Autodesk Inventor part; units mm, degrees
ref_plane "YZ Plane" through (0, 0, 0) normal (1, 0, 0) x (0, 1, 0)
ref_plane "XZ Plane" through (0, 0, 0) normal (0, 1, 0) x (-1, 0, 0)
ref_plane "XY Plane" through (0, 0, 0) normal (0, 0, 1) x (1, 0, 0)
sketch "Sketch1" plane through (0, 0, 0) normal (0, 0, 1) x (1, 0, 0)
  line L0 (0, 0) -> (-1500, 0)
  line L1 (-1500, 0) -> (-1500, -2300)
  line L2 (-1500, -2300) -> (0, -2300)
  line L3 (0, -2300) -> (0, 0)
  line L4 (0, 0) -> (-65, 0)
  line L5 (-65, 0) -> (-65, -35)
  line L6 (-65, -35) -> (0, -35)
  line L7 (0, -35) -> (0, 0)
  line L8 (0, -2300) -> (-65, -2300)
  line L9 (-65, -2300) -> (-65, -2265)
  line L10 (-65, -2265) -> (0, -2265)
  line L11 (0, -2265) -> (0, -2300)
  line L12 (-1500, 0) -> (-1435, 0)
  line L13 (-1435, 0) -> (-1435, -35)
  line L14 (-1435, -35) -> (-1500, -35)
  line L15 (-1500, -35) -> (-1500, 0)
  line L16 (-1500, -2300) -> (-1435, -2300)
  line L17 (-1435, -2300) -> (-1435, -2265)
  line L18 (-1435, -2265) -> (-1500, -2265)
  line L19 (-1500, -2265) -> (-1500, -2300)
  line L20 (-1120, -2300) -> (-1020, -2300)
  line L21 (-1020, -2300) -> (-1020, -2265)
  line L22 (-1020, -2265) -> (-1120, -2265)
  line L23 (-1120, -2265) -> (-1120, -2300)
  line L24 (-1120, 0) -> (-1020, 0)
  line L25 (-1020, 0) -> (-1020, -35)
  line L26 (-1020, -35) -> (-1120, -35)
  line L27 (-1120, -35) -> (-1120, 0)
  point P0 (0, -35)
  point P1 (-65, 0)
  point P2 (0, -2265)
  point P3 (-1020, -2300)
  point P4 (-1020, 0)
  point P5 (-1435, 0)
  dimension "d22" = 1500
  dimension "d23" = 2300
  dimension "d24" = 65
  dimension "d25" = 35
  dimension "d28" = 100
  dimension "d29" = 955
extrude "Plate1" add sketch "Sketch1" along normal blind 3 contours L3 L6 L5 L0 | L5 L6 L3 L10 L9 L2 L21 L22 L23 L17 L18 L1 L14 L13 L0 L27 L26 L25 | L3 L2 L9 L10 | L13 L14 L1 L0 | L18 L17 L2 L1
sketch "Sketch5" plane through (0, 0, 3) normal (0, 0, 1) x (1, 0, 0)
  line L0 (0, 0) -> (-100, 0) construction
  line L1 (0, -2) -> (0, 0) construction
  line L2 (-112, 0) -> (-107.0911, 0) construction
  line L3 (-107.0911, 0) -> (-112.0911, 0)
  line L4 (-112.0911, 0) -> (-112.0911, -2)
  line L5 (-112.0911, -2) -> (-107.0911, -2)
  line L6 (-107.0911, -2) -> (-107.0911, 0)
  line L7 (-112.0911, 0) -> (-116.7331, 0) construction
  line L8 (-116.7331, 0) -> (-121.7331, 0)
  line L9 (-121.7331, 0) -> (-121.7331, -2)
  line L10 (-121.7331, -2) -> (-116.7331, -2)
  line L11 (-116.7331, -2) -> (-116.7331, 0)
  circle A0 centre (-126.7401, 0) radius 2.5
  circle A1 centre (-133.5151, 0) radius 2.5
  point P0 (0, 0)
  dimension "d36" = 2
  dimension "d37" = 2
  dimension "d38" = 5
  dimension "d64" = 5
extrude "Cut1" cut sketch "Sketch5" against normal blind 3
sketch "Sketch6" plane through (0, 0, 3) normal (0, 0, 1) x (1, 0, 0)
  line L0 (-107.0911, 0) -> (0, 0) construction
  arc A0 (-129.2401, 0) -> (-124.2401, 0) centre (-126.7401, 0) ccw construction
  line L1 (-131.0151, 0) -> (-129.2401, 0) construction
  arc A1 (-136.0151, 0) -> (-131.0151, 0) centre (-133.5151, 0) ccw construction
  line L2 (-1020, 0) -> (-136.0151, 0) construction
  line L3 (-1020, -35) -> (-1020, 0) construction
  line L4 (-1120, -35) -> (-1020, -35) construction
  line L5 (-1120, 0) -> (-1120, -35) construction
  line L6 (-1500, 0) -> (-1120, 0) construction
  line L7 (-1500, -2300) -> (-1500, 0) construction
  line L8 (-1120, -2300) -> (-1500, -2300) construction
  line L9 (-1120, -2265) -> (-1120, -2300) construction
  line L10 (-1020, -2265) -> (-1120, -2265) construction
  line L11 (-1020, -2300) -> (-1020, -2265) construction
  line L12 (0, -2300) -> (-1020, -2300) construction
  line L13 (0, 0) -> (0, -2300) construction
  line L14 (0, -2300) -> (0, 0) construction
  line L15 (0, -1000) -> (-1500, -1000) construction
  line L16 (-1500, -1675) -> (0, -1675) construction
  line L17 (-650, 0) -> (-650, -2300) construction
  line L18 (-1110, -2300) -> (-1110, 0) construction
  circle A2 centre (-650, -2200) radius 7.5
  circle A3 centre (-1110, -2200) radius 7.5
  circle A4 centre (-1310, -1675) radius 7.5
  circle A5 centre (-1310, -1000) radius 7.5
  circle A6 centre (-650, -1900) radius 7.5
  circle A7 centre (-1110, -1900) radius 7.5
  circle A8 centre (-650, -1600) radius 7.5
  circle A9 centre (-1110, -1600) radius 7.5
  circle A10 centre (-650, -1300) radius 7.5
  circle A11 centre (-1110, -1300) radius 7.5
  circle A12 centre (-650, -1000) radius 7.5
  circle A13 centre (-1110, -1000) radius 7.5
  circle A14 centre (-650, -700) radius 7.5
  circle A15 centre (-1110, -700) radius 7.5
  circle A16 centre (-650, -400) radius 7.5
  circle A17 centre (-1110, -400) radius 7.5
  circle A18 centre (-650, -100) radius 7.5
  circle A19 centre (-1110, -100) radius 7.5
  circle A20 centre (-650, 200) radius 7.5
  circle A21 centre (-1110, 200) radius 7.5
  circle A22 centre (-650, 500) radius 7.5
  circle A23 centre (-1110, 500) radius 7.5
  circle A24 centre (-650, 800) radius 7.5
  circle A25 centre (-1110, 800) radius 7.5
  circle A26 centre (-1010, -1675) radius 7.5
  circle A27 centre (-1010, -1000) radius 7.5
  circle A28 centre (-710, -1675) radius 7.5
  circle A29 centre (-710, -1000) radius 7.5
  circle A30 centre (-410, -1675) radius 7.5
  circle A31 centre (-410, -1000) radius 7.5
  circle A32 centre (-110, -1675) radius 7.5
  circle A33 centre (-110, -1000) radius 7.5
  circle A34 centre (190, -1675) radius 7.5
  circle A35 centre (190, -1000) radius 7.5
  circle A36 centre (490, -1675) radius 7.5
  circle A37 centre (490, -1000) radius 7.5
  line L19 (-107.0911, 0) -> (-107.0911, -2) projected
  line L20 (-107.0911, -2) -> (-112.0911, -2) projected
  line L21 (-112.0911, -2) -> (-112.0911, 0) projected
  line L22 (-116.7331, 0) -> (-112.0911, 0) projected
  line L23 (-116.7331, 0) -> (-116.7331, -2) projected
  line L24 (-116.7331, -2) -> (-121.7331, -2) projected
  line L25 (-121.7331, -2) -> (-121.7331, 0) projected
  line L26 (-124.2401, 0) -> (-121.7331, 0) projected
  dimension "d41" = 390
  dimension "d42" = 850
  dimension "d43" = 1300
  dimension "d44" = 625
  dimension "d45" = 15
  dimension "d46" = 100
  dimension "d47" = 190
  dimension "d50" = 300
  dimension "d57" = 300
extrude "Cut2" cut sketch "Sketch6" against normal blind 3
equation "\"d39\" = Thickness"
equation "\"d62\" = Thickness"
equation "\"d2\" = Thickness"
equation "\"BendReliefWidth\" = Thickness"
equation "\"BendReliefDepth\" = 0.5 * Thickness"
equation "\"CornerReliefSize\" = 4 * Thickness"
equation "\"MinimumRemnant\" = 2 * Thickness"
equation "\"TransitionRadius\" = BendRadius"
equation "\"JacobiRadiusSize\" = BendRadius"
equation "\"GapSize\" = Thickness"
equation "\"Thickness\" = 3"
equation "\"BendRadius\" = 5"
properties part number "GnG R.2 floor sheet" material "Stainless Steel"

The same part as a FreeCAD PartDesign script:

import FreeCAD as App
import Part
import Sketcher
Q = App.Units.Quantity

doc = App.newDocument("Part")
body = doc.addObject("PartDesign::Body", "Body")

# Sketch on XY plane
sketch1 = doc.addObject("Sketcher::SketchObject", "Sketch")
body.addObject(sketch1)
sketch1.AttachmentSupport = (doc.XY_Plane, [""])
sketch1.MapMode = "FlatFace"
sketch1.addGeometry([
    Part.LineSegment(App.Vector(0, 0, 0), App.Vector(-1020, 0, 0)),  # 0
    Part.LineSegment(App.Vector(-1020, 0, 0), App.Vector(-1020, -35, 0)),  # 1
    Part.LineSegment(App.Vector(-1020, -35, 0), App.Vector(-1120, -35, 0)),  # 2
    Part.LineSegment(App.Vector(-1120, -35, 0), App.Vector(-1120, 0, 0)),  # 3
    Part.LineSegment(App.Vector(-1120, 0, 0), App.Vector(-1500, 0, 0)),  # 4
    Part.LineSegment(App.Vector(-1500, 0, 0), App.Vector(-1500, -2300, 0)),  # 5
    Part.LineSegment(App.Vector(-1500, -2300, 0), App.Vector(-1120, -2300, 0)),  # 6
    Part.LineSegment(App.Vector(-1120, -2300, 0), App.Vector(-1120, -2265, 0)),  # 7
    Part.LineSegment(App.Vector(-1120, -2265, 0), App.Vector(-1020, -2265, 0)),  # 8
    Part.LineSegment(App.Vector(-1020, -2265, 0), App.Vector(-1020, -2300, 0)),  # 9
    Part.LineSegment(App.Vector(-1020, -2300, 0), App.Vector(0, -2300, 0)),  # 10
    Part.LineSegment(App.Vector(0, -2300, 0), App.Vector(0, 0, 0)),  # 11
], False)
sketch1.addConstraint([
    Sketcher.Constraint("Coincident", 0, 2, 1, 1),
    Sketcher.Constraint("Coincident", 1, 2, 2, 1),
    Sketcher.Constraint("Coincident", 2, 2, 3, 1),
    Sketcher.Constraint("Coincident", 3, 2, 4, 1),
    Sketcher.Constraint("Coincident", 4, 2, 5, 1),
    Sketcher.Constraint("Coincident", 5, 2, 6, 1),
    Sketcher.Constraint("Coincident", 6, 2, 7, 1),
    Sketcher.Constraint("Coincident", 7, 2, 8, 1),
    Sketcher.Constraint("Coincident", 8, 2, 9, 1),
    Sketcher.Constraint("Coincident", 9, 2, 10, 1),
    Sketcher.Constraint("Coincident", 10, 2, 11, 1),
    Sketcher.Constraint("Coincident", 11, 2, 0, 1),
    Sketcher.Constraint("Horizontal", 0),
    Sketcher.Constraint("Vertical", 1),
    Sketcher.Constraint("Horizontal", 2),
    Sketcher.Constraint("Vertical", 3),
    Sketcher.Constraint("Horizontal", 4),
    Sketcher.Constraint("Vertical", 5),
    Sketcher.Constraint("Horizontal", 6),
    Sketcher.Constraint("Vertical", 7),
    Sketcher.Constraint("Horizontal", 8),
    Sketcher.Constraint("Vertical", 9),
    Sketcher.Constraint("Horizontal", 10),
    Sketcher.Constraint("Vertical", 11),
    Sketcher.Constraint("Coincident", 11, 2, -1, 1),
    Sketcher.Constraint("PointOnObject", 3, 2, -1),
    Sketcher.Constraint("Horizontal", 6, 2, 9, 2),
    Sketcher.Constraint("Vertical", 3, 2, 6, 2),
    Sketcher.Constraint("Vertical", 1, 2, 8, 2),
    Sketcher.Constraint("Equal", 3, 7),
    Sketcher.Constraint("DistanceX", 2, 2, 2, 1, Q("100 mm")),
    Sketcher.Constraint("DistanceY", 1, 2, 1, 1, Q("35 mm")),
    Sketcher.Constraint("DistanceY", 5, 2, 5, 1, Q("2300 mm")),
    Sketcher.Constraint("DistanceX", 4, 2, -1, 1, Q("1500 mm")),
    Sketcher.Constraint("DistanceX", 0, 2, 0, 1, Q("1020 mm")),
])
pad1 = doc.addObject("PartDesign::Pad", "Pad")
body.addObject(pad1)
pad1.Profile = sketch1
pad1.Length = 3

# Sketch on XY plane
sketch2 = doc.addObject("Sketcher::SketchObject", "Sketch001")
body.addObject(sketch2)
sketch2.AttachmentSupport = (doc.XY_Plane, [""])
sketch2.MapMode = "FlatFace"
sketch2.AttachmentOffset = App.Placement(App.Vector(0, 0, 3), App.Rotation())
sketch2.addGeometry([
    Part.LineSegment(App.Vector(-107.1, -2, 0), App.Vector(-107.1, 0, 0)),  # 0
    Part.LineSegment(App.Vector(-107.1, 0, 0), App.Vector(-112.1, 0, 0)),  # 1
    Part.LineSegment(App.Vector(-112.1, 0, 0), App.Vector(-112.1, -2, 0)),  # 2
    Part.LineSegment(App.Vector(-112.1, -2, 0), App.Vector(-107.1, -2, 0)),  # 3
    Part.LineSegment(App.Vector(-116.7, -2, 0), App.Vector(-116.7, 0, 0)),  # 4
    Part.LineSegment(App.Vector(-116.7, 0, 0), App.Vector(-121.7, 0, 0)),  # 5
    Part.LineSegment(App.Vector(-121.7, 0, 0), App.Vector(-121.7, -2, 0)),  # 6
    Part.LineSegment(App.Vector(-121.7, -2, 0), App.Vector(-116.7, -2, 0)),  # 7
    Part.Circle(App.Vector(-126.7, 0, 0), App.Vector(0, 0, 1), 2.5),  # 8
    Part.Circle(App.Vector(-133.5, 0, 0), App.Vector(0, 0, 1), 2.5),  # 9
], False)
sketch2.addConstraint([
    Sketcher.Constraint("Coincident", 0, 2, 1, 1),
    Sketcher.Constraint("Coincident", 1, 2, 2, 1),
    Sketcher.Constraint("Coincident", 2, 2, 3, 1),
    Sketcher.Constraint("Coincident", 3, 2, 0, 1),
    Sketcher.Constraint("Coincident", 4, 2, 5, 1),
    Sketcher.Constraint("Coincident", 5, 2, 6, 1),
    Sketcher.Constraint("Coincident", 6, 2, 7, 1),
    Sketcher.Constraint("Coincident", 7, 2, 4, 1),
    Sketcher.Constraint("Vertical", 0),
    Sketcher.Constraint("Horizontal", 1),
    Sketcher.Constraint("Vertical", 2),
    Sketcher.Constraint("Horizontal", 3),
    Sketcher.Constraint("Vertical", 4),
    Sketcher.Constraint("Horizontal", 5),
    Sketcher.Constraint("Vertical", 6),
    Sketcher.Constraint("Horizontal", 7),
    Sketcher.Constraint("Equal", 8, 9),
    Sketcher.Constraint("PointOnObject", 8, 3, -1),
    Sketcher.Constraint("PointOnObject", 9, 3, -1),
    Sketcher.Constraint("PointOnObject", 0, 2, -1),
    Sketcher.Constraint("PointOnObject", 4, 2, -1),
    Sketcher.Constraint("Horizontal", 3, 2, 6, 2),
    Sketcher.Constraint("Equal", 3, 5),
    Sketcher.Constraint("Diameter", 8, Q("5 mm")),
    Sketcher.Constraint("DistanceX", 1, 2, 1, 1, Q("5 mm")),
    Sketcher.Constraint("DistanceY", 0, 1, 0, 2, Q("2 mm")),
    Sketcher.Constraint("DistanceX", 8, 3, -1, 1, Q("126.74 mm")),
    Sketcher.Constraint("DistanceX", 9, 3, -1, 1, Q("133.515 mm")),
    Sketcher.Constraint("DistanceX", 0, 2, -1, 1, Q("107.091 mm")),
    Sketcher.Constraint("DistanceX", 4, 2, -1, 1, Q("116.733 mm")),
])
pocket1 = doc.addObject("PartDesign::Pocket", "Pocket")
body.addObject(pocket1)
pocket1.Profile = sketch2
pocket1.Length = 3

# Sketch on XY plane
sketch3 = doc.addObject("Sketcher::SketchObject", "Sketch002")
body.addObject(sketch3)
sketch3.AttachmentSupport = (doc.XY_Plane, [""])
sketch3.MapMode = "FlatFace"
sketch3.AttachmentOffset = App.Placement(App.Vector(0, 0, 3), App.Rotation())
sketch3.addGeometry([
    Part.Circle(App.Vector(-650, -2200, 0), App.Vector(0, 0, 1), 8),  # 0
    Part.Circle(App.Vector(-1110, -2200, 0), App.Vector(0, 0, 1), 8),  # 1
    Part.Circle(App.Vector(-1310, -1675, 0), App.Vector(0, 0, 1), 8),  # 2
    Part.Circle(App.Vector(-1310, -1000, 0), App.Vector(0, 0, 1), 8),  # 3
    Part.Circle(App.Vector(-650, -1900, 0), App.Vector(0, 0, 1), 8),  # 4
    Part.Circle(App.Vector(-1110, -1900, 0), App.Vector(0, 0, 1), 8),  # 5
    Part.Circle(App.Vector(-650, -1600, 0), App.Vector(0, 0, 1), 8),  # 6
    Part.Circle(App.Vector(-1110, -1600, 0), App.Vector(0, 0, 1), 8),  # 7
    Part.Circle(App.Vector(-650, -1300, 0), App.Vector(0, 0, 1), 8),  # 8
    Part.Circle(App.Vector(-1110, -1300, 0), App.Vector(0, 0, 1), 8),  # 9
    Part.Circle(App.Vector(-650, -1000, 0), App.Vector(0, 0, 1), 8),  # 10
    Part.Circle(App.Vector(-1110, -1000, 0), App.Vector(0, 0, 1), 8),  # 11
    Part.Circle(App.Vector(-650, -700, 0), App.Vector(0, 0, 1), 8),  # 12
    Part.Circle(App.Vector(-1110, -700, 0), App.Vector(0, 0, 1), 8),  # 13
    Part.Circle(App.Vector(-650, -400, 0), App.Vector(0, 0, 1), 8),  # 14
    Part.Circle(App.Vector(-1110, -400, 0), App.Vector(0, 0, 1), 8),  # 15
    Part.Circle(App.Vector(-650, -100, 0), App.Vector(0, 0, 1), 8),  # 16
    Part.Circle(App.Vector(-1110, -100, 0), App.Vector(0, 0, 1), 8),  # 17
    Part.Circle(App.Vector(-650, 200, 0), App.Vector(0, 0, 1), 8),  # 18
    Part.Circle(App.Vector(-1110, 200, 0), App.Vector(0, 0, 1), 8),  # 19
    Part.Circle(App.Vector(-650, 500, 0), App.Vector(0, 0, 1), 8),  # 20
    Part.Circle(App.Vector(-1110, 500, 0), App.Vector(0, 0, 1), 8),  # 21
    Part.Circle(App.Vector(-650, 800, 0), App.Vector(0, 0, 1), 8),  # 22
    Part.Circle(App.Vector(-1110, 800, 0), App.Vector(0, 0, 1), 8),  # 23
    Part.Circle(App.Vector(-1010, -1675, 0), App.Vector(0, 0, 1), 8),  # 24
    Part.Circle(App.Vector(-1010, -1000, 0), App.Vector(0, 0, 1), 8),  # 25
    Part.Circle(App.Vector(-710, -1675, 0), App.Vector(0, 0, 1), 8),  # 26
    Part.Circle(App.Vector(-710, -1000, 0), App.Vector(0, 0, 1), 8),  # 27
    Part.Circle(App.Vector(-410, -1675, 0), App.Vector(0, 0, 1), 8),  # 28
    Part.Circle(App.Vector(-410, -1000, 0), App.Vector(0, 0, 1), 8),  # 29
    Part.Circle(App.Vector(-110, -1675, 0), App.Vector(0, 0, 1), 8),  # 30
    Part.Circle(App.Vector(-110, -1000, 0), App.Vector(0, 0, 1), 8),  # 31
    Part.Circle(App.Vector(190, -1675, 0), App.Vector(0, 0, 1), 8),  # 32
    Part.Circle(App.Vector(190, -1000, 0), App.Vector(0, 0, 1), 8),  # 33
    Part.Circle(App.Vector(490, -1675, 0), App.Vector(0, 0, 1), 8),  # 34
    Part.Circle(App.Vector(490, -1000, 0), App.Vector(0, 0, 1), 8),  # 35
], False)
sketch3.addConstraint([
    Sketcher.Constraint("Equal", 0, 1),
    Sketcher.Constraint("Equal", 1, 2),
    Sketcher.Constraint("Equal", 2, 3),
    Sketcher.Constraint("Equal", 3, 4),
    Sketcher.Constraint("Equal", 4, 5),
    Sketcher.Constraint("Equal", 5, 6),
    Sketcher.Constraint("Equal", 6, 7),
    Sketcher.Constraint("Equal", 7, 8),
    Sketcher.Constraint("Equal", 8, 9),
    Sketcher.Constraint("Equal", 9, 10),
    Sketcher.Constraint("Equal", 10, 11),
    Sketcher.Constraint("Equal", 11, 12),
    Sketcher.Constraint("Equal", 12, 13),
    Sketcher.Constraint("Equal", 13, 14),
    Sketcher.Constraint("Equal", 14, 15),
    Sketcher.Constraint("Equal", 15, 16),
    Sketcher.Constraint("Equal", 16, 17),
    Sketcher.Constraint("Equal", 17, 18),
    Sketcher.Constraint("Equal", 18, 19),
    Sketcher.Constraint("Equal", 19, 20),
    Sketcher.Constraint("Equal", 20, 21),
    Sketcher.Constraint("Equal", 21, 22),
    Sketcher.Constraint("Equal", 22, 23),
    Sketcher.Constraint("Equal", 23, 24),
    Sketcher.Constraint("Equal", 24, 25),
    Sketcher.Constraint("Equal", 25, 26),
    Sketcher.Constraint("Equal", 26, 27),
    Sketcher.Constraint("Equal", 27, 28),
    Sketcher.Constraint("Equal", 28, 29),
    Sketcher.Constraint("Equal", 29, 30),
    Sketcher.Constraint("Equal", 30, 31),
    Sketcher.Constraint("Equal", 31, 32),
    Sketcher.Constraint("Equal", 32, 33),
    Sketcher.Constraint("Equal", 33, 34),
    Sketcher.Constraint("Equal", 34, 35),
    Sketcher.Constraint("Horizontal", 0, 3, 1, 3),
    Sketcher.Constraint("Horizontal", 4, 3, 5, 3),
    Sketcher.Constraint("Horizontal", 6, 3, 7, 3),
    Sketcher.Constraint("Horizontal", 8, 3, 9, 3),
    Sketcher.Constraint("Horizontal", 3, 3, 10, 3),
    Sketcher.Constraint("Horizontal", 10, 3, 11, 3),
    Sketcher.Constraint("Horizontal", 12, 3, 13, 3),
    Sketcher.Constraint("Horizontal", 14, 3, 15, 3),
    Sketcher.Constraint("Horizontal", 16, 3, 17, 3),
    Sketcher.Constraint("Horizontal", 18, 3, 19, 3),
    Sketcher.Constraint("Horizontal", 20, 3, 21, 3),
    Sketcher.Constraint("Horizontal", 22, 3, 23, 3),
    Sketcher.Constraint("Horizontal", 2, 3, 24, 3),
    Sketcher.Constraint("Horizontal", 11, 3, 25, 3),
    Sketcher.Constraint("Horizontal", 24, 3, 26, 3),
    Sketcher.Constraint("Horizontal", 25, 3, 27, 3),
    Sketcher.Constraint("Horizontal", 26, 3, 28, 3),
    Sketcher.Constraint("Horizontal", 27, 3, 29, 3),
    Sketcher.Constraint("Horizontal", 28, 3, 30, 3),
    Sketcher.Constraint("Horizontal", 29, 3, 31, 3),
    Sketcher.Constraint("Horizontal", 30, 3, 32, 3),
    Sketcher.Constraint("Horizontal", 31, 3, 33, 3),
    Sketcher.Constraint("Horizontal", 32, 3, 34, 3),
    Sketcher.Constraint("Horizontal", 33, 3, 35, 3),
    Sketcher.Constraint("Vertical", 2, 3, 3, 3),
    Sketcher.Constraint("Vertical", 0, 3, 4, 3),
    Sketcher.Constraint("Vertical", 1, 3, 5, 3),
    Sketcher.Constraint("Vertical", 4, 3, 6, 3),
    Sketcher.Constraint("Vertical", 5, 3, 7, 3),
    Sketcher.Constraint("Vertical", 6, 3, 8, 3),
    Sketcher.Constraint("Vertical", 7, 3, 9, 3),
    Sketcher.Constraint("Vertical", 8, 3, 10, 3),
    Sketcher.Constraint("Vertical", 9, 3, 11, 3),
    Sketcher.Constraint("Vertical", 10, 3, 12, 3),
    Sketcher.Constraint("Vertical", 11, 3, 13, 3),
    Sketcher.Constraint("Vertical", 12, 3, 14, 3),
    Sketcher.Constraint("Vertical", 13, 3, 15, 3),
    Sketcher.Constraint("Vertical", 14, 3, 16, 3),
    Sketcher.Constraint("Vertical", 15, 3, 17, 3),
    Sketcher.Constraint("Vertical", 16, 3, 18, 3),
    Sketcher.Constraint("Vertical", 17, 3, 19, 3),
    Sketcher.Constraint("Vertical", 18, 3, 20, 3),
    Sketcher.Constraint("Vertical", 19, 3, 21, 3),
    Sketcher.Constraint("Vertical", 20, 3, 22, 3),
    Sketcher.Constraint("Vertical", 21, 3, 23, 3),
    Sketcher.Constraint("Vertical", 24, 3, 25, 3),
    Sketcher.Constraint("Vertical", 26, 3, 27, 3),
    Sketcher.Constraint("Vertical", 28, 3, 29, 3),
    Sketcher.Constraint("Vertical", 30, 3, 31, 3),
    Sketcher.Constraint("Vertical", 32, 3, 33, 3),
    Sketcher.Constraint("Vertical", 34, 3, 35, 3),
    Sketcher.Constraint("Diameter", 0, Q("15 mm")),
    Sketcher.Constraint("DistanceY", 8, 3, -1, 1, Q("1300 mm")),
    Sketcher.Constraint("DistanceY", 16, 3, -1, 1, Q("100 mm")),
    Sketcher.Constraint("DistanceX", -1, 1, 32, 3, Q("190 mm")),
    Sketcher.Constraint("DistanceY", 0, 3, 4, 3, Q("300 mm")),
    Sketcher.Constraint("DistanceY", 4, 3, 6, 3, Q("300 mm")),
    Sketcher.Constraint("DistanceY", 6, 3, 8, 3, Q("300 mm")),
    Sketcher.Constraint("DistanceY", 8, 3, 3, 3, Q("300 mm")),
    Sketcher.Constraint("DistanceY", 10, 3, 12, 3, Q("300 mm")),
    Sketcher.Constraint("DistanceY", 12, 3, 14, 3, Q("300 mm")),
    Sketcher.Constraint("DistanceY", 16, 3, 18, 3, Q("300 mm")),
    Sketcher.Constraint("DistanceY", 18, 3, 20, 3, Q("300 mm")),
    Sketcher.Constraint("DistanceY", 20, 3, 22, 3, Q("300 mm")),
    Sketcher.Constraint("DistanceX", 7, 3, 24, 3, Q("100 mm")),
    Sketcher.Constraint("DistanceX", 2, 3, 24, 3, Q("300 mm")),
    Sketcher.Constraint("DistanceX", 24, 3, 26, 3, Q("300 mm")),
    Sketcher.Constraint("DistanceX", 26, 3, 28, 3, Q("300 mm")),
    Sketcher.Constraint("DistanceX", 28, 3, 30, 3, Q("300 mm")),
    Sketcher.Constraint("DistanceX", 30, 3, 32, 3, Q("300 mm")),
    Sketcher.Constraint("DistanceX", 32, 3, 34, 3, Q("300 mm")),
    Sketcher.Constraint("DistanceX", 0, 3, -1, 1, Q("650 mm")),
    Sketcher.Constraint("DistanceY", 2, 3, -1, 1, Q("1675 mm")),
])
pocket2 = doc.addObject("PartDesign::Pocket", "Pocket001")
body.addObject(pocket2)
pocket2.Profile = sketch3
pocket2.Length = 3

doc.recompute()
